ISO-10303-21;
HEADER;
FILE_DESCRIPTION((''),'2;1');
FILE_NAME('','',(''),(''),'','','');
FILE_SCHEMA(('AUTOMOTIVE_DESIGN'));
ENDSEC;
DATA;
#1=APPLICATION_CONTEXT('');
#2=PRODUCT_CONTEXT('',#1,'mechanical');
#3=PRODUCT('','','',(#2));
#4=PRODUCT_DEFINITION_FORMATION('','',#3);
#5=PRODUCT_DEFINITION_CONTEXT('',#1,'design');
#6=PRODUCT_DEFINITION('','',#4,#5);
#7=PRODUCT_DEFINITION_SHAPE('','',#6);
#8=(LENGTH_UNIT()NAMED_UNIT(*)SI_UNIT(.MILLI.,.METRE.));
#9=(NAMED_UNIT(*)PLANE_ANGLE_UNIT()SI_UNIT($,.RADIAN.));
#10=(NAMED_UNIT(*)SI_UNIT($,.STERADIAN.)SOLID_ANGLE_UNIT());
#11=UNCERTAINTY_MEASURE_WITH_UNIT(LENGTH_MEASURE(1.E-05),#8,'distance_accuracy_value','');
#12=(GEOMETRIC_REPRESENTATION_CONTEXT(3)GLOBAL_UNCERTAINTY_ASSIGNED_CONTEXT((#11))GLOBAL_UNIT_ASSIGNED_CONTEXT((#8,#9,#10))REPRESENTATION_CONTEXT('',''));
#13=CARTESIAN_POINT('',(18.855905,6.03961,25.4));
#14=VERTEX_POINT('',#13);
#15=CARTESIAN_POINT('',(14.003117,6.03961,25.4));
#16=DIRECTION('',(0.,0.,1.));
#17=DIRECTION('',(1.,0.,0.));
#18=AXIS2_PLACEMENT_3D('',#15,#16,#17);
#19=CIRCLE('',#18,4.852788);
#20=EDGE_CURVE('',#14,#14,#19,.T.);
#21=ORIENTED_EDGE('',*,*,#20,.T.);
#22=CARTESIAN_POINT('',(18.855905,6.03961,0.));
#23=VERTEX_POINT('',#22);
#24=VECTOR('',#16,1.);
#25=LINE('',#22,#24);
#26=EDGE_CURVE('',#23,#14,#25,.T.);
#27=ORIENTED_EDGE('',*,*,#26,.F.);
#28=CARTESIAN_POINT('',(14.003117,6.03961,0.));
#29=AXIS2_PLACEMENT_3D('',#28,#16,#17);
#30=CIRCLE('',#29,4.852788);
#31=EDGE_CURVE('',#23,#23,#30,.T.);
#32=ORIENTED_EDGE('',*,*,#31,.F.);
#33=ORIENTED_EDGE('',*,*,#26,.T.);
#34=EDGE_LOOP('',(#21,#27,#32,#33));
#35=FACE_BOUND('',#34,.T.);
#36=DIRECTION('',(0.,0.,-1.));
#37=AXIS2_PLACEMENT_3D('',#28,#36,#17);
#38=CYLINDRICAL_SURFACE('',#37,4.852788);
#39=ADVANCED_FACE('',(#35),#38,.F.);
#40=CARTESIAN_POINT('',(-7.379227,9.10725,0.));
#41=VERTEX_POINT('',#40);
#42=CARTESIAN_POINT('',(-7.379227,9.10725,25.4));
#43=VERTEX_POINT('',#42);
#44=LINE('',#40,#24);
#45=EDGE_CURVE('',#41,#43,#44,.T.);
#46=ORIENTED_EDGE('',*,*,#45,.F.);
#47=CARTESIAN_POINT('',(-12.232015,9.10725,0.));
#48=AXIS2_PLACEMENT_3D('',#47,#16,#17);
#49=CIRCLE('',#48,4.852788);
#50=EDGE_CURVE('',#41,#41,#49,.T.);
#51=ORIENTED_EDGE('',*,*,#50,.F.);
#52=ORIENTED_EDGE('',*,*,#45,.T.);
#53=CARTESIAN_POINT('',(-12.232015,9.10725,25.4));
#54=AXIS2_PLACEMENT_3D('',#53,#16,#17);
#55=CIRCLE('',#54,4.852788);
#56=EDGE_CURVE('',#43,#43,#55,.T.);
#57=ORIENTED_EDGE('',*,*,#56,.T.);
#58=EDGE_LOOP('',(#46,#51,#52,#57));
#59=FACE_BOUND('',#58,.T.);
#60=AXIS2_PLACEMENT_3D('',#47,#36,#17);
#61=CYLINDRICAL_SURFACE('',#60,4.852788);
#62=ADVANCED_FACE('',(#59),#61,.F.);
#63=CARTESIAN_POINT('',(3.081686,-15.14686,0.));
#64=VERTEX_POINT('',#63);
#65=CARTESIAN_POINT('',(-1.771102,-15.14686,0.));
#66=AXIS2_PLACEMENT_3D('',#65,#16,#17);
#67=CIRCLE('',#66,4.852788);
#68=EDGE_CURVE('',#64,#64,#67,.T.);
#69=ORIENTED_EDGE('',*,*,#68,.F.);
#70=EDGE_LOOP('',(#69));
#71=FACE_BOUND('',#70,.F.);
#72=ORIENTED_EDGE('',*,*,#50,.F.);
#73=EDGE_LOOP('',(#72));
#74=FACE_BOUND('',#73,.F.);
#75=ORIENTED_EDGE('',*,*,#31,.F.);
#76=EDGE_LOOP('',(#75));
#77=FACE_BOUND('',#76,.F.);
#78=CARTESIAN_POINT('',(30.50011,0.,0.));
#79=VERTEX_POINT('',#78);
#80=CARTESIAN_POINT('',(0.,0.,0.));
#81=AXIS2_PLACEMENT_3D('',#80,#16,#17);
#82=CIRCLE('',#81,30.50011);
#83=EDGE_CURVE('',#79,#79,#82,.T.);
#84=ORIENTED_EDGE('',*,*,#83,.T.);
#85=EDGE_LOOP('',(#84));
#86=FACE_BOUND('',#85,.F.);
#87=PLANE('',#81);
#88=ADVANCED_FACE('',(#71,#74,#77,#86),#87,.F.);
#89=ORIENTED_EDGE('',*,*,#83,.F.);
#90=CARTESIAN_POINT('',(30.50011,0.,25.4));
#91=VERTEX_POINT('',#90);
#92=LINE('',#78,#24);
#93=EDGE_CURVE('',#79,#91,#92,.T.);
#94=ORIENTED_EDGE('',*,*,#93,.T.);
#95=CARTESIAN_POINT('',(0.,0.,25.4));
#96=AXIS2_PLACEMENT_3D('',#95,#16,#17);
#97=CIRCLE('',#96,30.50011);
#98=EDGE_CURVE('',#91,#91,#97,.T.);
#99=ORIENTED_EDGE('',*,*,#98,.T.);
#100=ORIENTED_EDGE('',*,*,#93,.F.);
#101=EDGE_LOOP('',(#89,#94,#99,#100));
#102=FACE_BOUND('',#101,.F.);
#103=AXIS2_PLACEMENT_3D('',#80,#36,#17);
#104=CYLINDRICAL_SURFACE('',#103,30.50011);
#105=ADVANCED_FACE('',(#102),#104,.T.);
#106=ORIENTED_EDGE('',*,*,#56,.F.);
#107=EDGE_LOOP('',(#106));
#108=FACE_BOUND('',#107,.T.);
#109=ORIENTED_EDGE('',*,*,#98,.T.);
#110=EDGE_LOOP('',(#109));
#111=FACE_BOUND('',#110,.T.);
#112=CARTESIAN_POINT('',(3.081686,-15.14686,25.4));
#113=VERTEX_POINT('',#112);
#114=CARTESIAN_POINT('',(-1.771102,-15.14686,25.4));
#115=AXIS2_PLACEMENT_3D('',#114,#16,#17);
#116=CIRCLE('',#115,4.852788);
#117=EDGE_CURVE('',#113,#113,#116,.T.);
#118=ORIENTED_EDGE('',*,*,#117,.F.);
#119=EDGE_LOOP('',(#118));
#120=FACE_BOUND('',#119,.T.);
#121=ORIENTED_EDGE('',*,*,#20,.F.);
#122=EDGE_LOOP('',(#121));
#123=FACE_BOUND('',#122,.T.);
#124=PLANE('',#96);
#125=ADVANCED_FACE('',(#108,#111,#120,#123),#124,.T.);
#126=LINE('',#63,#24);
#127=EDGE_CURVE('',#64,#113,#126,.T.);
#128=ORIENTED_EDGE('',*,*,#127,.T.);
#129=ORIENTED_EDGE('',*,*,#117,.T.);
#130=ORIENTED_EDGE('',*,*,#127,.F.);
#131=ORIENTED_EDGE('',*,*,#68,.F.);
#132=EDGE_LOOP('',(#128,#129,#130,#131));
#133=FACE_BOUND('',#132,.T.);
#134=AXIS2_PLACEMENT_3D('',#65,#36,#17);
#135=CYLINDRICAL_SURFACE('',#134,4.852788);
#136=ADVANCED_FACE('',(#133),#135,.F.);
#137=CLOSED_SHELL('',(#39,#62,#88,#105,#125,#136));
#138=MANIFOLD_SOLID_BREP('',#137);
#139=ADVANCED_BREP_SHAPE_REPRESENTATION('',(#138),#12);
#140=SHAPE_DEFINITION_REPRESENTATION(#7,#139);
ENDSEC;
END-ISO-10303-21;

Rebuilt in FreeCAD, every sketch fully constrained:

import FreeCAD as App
import Part
import Sketcher

V = App.Vector

doc = App.newDocument("Part")
params = doc.addObject("Spreadsheet::Sheet", "Params")
for row, (alias, value) in enumerate([
    ("pad1_length", "1 in"),
], start=1):
    params.set(f"A{row}", alias)
    params.set(f"B{row}", "=" + value)
    params.setAlias(f"B{row}", alias)

body = doc.addObject("PartDesign::Body", "Body")

sketch1 = doc.addObject("Sketcher::SketchObject", "Sketch")
body.addObject(sketch1)
sketch1.AttachmentSupport = (doc.XY_Plane, [""])
sketch1.MapMode = "FlatFace"
sketch1.addGeometry([
    Part.Circle(V(0, 0, 0), V(0, 0, 1), 30.5),
    Part.Circle(V(-1.8, -15.1, 0), V(0, 0, 1), 4.9),
    Part.Circle(V(-12.2, 9.1, 0), V(0, 0, 1), 4.9),
    Part.Circle(V(14, 6, 0), V(0, 0, 1), 4.9),
], False)
sketch1.addConstraint([
    Sketcher.Constraint("Coincident", 0, 3, -1, 1),
    Sketcher.Constraint("Equal", 1, 2),
    Sketcher.Constraint("Equal", 2, 3),
    Sketcher.Constraint("Diameter", 0, 61.00022),
    Sketcher.Constraint("Diameter", 1, 9.705576),
    Sketcher.Constraint("DistanceY", 1, 3, -1, 1, 15.14686),
    Sketcher.Constraint("DistanceY", -1, 1, 2, 3, 9.10725),
    Sketcher.Constraint("DistanceY", -1, 1, 3, 3, 6.03961),
    Sketcher.Constraint("DistanceX", 1, 3, 3, 3, 15.774219),
    Sketcher.Constraint("DistanceX", 2, 3, 3, 3, 26.235132),
    Sketcher.Constraint("DistanceX", 1, 3, -1, 1, 1.771102),
])
pad1 = doc.addObject("PartDesign::Pad", "Pad")
body.addObject(pad1)
pad1.Profile = sketch1
pad1.setExpression("Length", "Params.pad1_length")

doc.recompute()
